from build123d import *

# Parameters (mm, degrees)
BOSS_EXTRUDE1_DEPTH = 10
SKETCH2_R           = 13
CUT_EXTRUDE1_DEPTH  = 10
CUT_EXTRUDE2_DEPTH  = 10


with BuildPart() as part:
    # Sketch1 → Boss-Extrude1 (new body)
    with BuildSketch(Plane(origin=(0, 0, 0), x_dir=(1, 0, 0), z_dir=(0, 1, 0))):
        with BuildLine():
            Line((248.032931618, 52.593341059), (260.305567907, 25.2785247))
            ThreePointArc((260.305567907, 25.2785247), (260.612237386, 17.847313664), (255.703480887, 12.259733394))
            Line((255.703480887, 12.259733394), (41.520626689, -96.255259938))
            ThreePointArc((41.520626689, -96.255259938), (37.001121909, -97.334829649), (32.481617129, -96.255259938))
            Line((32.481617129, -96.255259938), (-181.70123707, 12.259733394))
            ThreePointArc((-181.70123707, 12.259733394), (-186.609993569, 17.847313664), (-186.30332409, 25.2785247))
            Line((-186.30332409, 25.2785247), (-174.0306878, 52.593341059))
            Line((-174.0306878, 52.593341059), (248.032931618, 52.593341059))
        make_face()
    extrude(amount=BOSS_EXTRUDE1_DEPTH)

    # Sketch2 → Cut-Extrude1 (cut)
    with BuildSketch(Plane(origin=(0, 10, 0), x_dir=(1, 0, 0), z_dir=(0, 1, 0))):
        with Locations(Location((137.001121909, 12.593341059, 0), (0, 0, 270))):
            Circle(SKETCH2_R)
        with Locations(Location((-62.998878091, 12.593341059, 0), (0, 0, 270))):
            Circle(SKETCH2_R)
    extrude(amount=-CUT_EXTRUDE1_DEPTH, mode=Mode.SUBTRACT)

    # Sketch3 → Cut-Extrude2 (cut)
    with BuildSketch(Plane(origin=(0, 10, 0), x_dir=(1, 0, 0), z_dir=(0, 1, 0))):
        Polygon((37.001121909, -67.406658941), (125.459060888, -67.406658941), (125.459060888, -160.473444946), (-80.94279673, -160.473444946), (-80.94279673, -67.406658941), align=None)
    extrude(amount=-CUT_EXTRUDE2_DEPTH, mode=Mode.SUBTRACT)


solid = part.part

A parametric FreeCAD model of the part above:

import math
import FreeCAD as App
import Part
import Sketcher

V = App.Vector

doc = App.newDocument("Part")
body = doc.addObject("PartDesign::Body", "Body")

# Sketch on XZ plane
sketch1 = body.newObject("Sketcher::SketchObject", "Sketch")
sketch1.AttachmentSupport = (doc.getObject("XZ_Plane"), [""])
sketch1.MapMode = "FlatFace"
sketch1.addGeometry(Part.LineSegment(V(260.305568, -25.278525, 0), V(248.032932, -52.593341, 0)), False)
sketch1.addGeometry(Part.LineSegment(V(248.032932, -52.593341, 0), V(-174.030688, -52.593341, 0)), False)
sketch1.addGeometry(Part.LineSegment(V(-174.030688, -52.593341, 0), V(-186.303324, -25.278525, 0)), False)
sketch1.addGeometry(Part.ArcOfCircle(Part.Circle(V(-177.181732, -21.180164, 0), V(0, 0, 1), 10), math.radians(116.868894), math.radians(204.194539)), False)
sketch1.addGeometry(Part.LineSegment(V(-181.701237, -12.259733, 0), V(32.481617, 96.25526, 0)), False)
sketch1.addGeometry(Part.ArcOfCircle(Part.Circle(V(37.001122, 87.33483, 0), V(0, 0, 1), 10), math.radians(63.131106), math.radians(116.868894)), False)
sketch1.addGeometry(Part.LineSegment(V(41.520627, 96.25526, 0), V(255.703481, -12.259733, 0)), False)
sketch1.addGeometry(Part.ArcOfCircle(Part.Circle(V(251.183976, -21.180164, 0), V(0, 0, 1), 10), math.radians(-24.194539), math.radians(63.131106)), False)
sketch1.addConstraint(Sketcher.Constraint("Coincident", 0, 2, 1, 1))
sketch1.addConstraint(Sketcher.Constraint("Coincident", 1, 2, 2, 1))
sketch1.addConstraint(Sketcher.Constraint("Tangent", 2, 2, 3, 2))
sketch1.addConstraint(Sketcher.Constraint("Tangent", 3, 1, 4, 1))
sketch1.addConstraint(Sketcher.Constraint("Tangent", 4, 2, 5, 2))
sketch1.addConstraint(Sketcher.Constraint("Tangent", 5, 1, 6, 1))
sketch1.addConstraint(Sketcher.Constraint("Tangent", 6, 2, 7, 2))
sketch1.addConstraint(Sketcher.Constraint("Tangent", 7, 1, 0, 1))
sketch1.addConstraint(Sketcher.Constraint("Horizontal", 1))
sketch1.addConstraint(Sketcher.Constraint("Equal", 3, 5))
sketch1.addConstraint(Sketcher.Constraint("Equal", 5, 7))
sketch1.addConstraint(Sketcher.Constraint("Horizontal", 3, 3, 7, 3))
sketch1.addConstraint(Sketcher.Constraint("Horizontal", 4, 2, 5, 1))
sketch1.addConstraint(Sketcher.Constraint("Horizontal", 2, 2, 7, 1))
sketch1.addConstraint(Sketcher.Constraint("Radius", 3, 10.0))
sketch1.addConstraint(Sketcher.Constraint("DistanceX", 1, 2, 1, 1, 422.063619))
sketch1.addConstraint(Sketcher.Constraint("DistanceX", 2, 2, 7, 3, 437.4873))
sketch1.addConstraint(Sketcher.Constraint("Distance", 0, 29.94523))
sketch1.addConstraint(Sketcher.Constraint("DistanceX", -1, 1, 5, 3, 37.001122))
sketch1.addConstraint(Sketcher.Constraint("DistanceY", -1, 1, 5, 3, 87.33483))
sketch1.addConstraint(Sketcher.Constraint("DistanceY", 0, 2, -1, 1, 52.593341))
pad1 = body.newObject("PartDesign::Pad", "Pad")
pad1.Profile = sketch1
pad1.Length = 10
pad1.Reversed = True

# Sketch on XZ plane
sketch2 = body.newObject("Sketcher::SketchObject", "Sketch001")
sketch2.AttachmentSupport = (doc.getObject("XZ_Plane"), [""])
sketch2.MapMode = "FlatFace"
sketch2.AttachmentOffset = App.Placement(V(0, 0, -10), App.Rotation())
sketch2.addGeometry(Part.Circle(V(137.001122, -12.593341, 0), V(0, 0, 1), 13), False)
sketch2.addGeometry(Part.Circle(V(-62.998878, -12.593341, 0), V(0, 0, 1), 13), False)
sketch2.addConstraint(Sketcher.Constraint("Equal", 0, 1))
sketch2.addConstraint(Sketcher.Constraint("Horizontal", 0, 3, 1, 3))
sketch2.addConstraint(Sketcher.Constraint("Diameter", 0, 26.0))
sketch2.addConstraint(Sketcher.Constraint("DistanceX", 1, 3, 0, 3, 200.0))
sketch2.addConstraint(Sketcher.Constraint("DistanceX", -1, 1, 0, 3, 137.001122))
sketch2.addConstraint(Sketcher.Constraint("DistanceY", 0, 3, -1, 1, 12.593341))
pocket1 = body.newObject("PartDesign::Pocket", "Pocket")
pocket1.Profile = sketch2
pocket1.Length = 10
pocket1.Reversed = True

# Sketch on XZ plane
sketch3 = body.newObject("Sketcher::SketchObject", "Sketch002")
sketch3.AttachmentSupport = (doc.getObject("XZ_Plane"), [""])
sketch3.MapMode = "FlatFace"
sketch3.AttachmentOffset = App.Placement(V(0, 0, -10), App.Rotation())
sketch3.addGeometry(Part.LineSegment(V(125.459061, 67.406659, 0), V(-80.942797, 67.406659, 0)), False)
sketch3.addGeometry(Part.LineSegment(V(-80.942797, 67.406659, 0), V(-80.942797, 160.473445, 0)), False)
sketch3.addGeometry(Part.LineSegment(V(-80.942797, 160.473445, 0), V(125.459061, 160.473445, 0)), False)
sketch3.addGeometry(Part.LineSegment(V(125.459061, 160.473445, 0), V(125.459061, 67.406659, 0)), False)
sketch3.addConstraint(Sketcher.Constraint("Coincident", 0, 2, 1, 1))
sketch3.addConstraint(Sketcher.Constraint("Coincident", 1, 2, 2, 1))
sketch3.addConstraint(Sketcher.Constraint("Coincident", 2, 2, 3, 1))
sketch3.addConstraint(Sketcher.Constraint("Coincident", 3, 2, 0, 1))
sketch3.addConstraint(Sketcher.Constraint("Horizontal", 0))
sketch3.addConstraint(Sketcher.Constraint("Vertical", 1))
sketch3.addConstraint(Sketcher.Constraint("Horizontal", 2))
sketch3.addConstraint(Sketcher.Constraint("Vertical", 3))
sketch3.addConstraint(Sketcher.Constraint("DistanceX", 0, 2, 0, 1, 206.401858))
sketch3.addConstraint(Sketcher.Constraint("DistanceY", 1, 1, 1, 2, 93.066786))
sketch3.addConstraint(Sketcher.Constraint("DistanceY", -1, 1, 0, 2, 67.406659))
sketch3.addConstraint(Sketcher.Constraint("DistanceX", -1, 1, 2, 2, 125.459061))
pocket2 = body.newObject("PartDesign::Pocket", "Pocket001")
pocket2.Profile = sketch3
pocket2.Length = 10
pocket2.Reversed = True

doc.recompute()
